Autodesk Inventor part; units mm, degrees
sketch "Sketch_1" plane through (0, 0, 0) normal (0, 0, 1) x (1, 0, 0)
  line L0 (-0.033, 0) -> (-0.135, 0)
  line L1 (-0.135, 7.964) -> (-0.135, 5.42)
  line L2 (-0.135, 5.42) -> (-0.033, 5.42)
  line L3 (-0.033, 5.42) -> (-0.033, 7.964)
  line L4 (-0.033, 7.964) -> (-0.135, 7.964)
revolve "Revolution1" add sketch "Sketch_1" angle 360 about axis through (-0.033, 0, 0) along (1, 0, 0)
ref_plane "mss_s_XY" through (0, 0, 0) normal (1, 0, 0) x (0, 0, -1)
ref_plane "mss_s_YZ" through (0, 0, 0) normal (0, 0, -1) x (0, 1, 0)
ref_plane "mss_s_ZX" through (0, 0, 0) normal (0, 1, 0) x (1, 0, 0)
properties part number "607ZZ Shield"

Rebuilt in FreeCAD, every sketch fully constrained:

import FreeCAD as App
import Part
import Sketcher
Q = App.Units.Quantity

doc = App.newDocument("Part")
body = doc.addObject("PartDesign::Body", "Body")

# Sketch on XY plane
sketch1 = body.newObject("Sketcher::SketchObject", "Sketch")
sketch1.AttachmentSupport = (doc.getObject("XY_Plane"), [""])
sketch1.MapMode = "FlatFace"
sketch1.addGeometry(Part.LineSegment(App.Vector(-0.03, 7.96, 0), App.Vector(-0.14, 7.96, 0)), False)
sketch1.addGeometry(Part.LineSegment(App.Vector(-0.14, 7.96, 0), App.Vector(-0.14, 5.42, 0)), False)
sketch1.addGeometry(Part.LineSegment(App.Vector(-0.14, 5.42, 0), App.Vector(-0.03, 5.42, 0)), False)
sketch1.addGeometry(Part.LineSegment(App.Vector(-0.03, 5.42, 0), App.Vector(-0.03, 7.96, 0)), False)
sketch1.addConstraint(Sketcher.Constraint("Coincident", 0, 2, 1, 1))
sketch1.addConstraint(Sketcher.Constraint("Coincident", 1, 2, 2, 1))
sketch1.addConstraint(Sketcher.Constraint("Coincident", 2, 2, 3, 1))
sketch1.addConstraint(Sketcher.Constraint("Coincident", 3, 2, 0, 1))
sketch1.addConstraint(Sketcher.Constraint("Horizontal", 0))
sketch1.addConstraint(Sketcher.Constraint("Vertical", 1))
sketch1.addConstraint(Sketcher.Constraint("Horizontal", 2))
sketch1.addConstraint(Sketcher.Constraint("Vertical", 3))
sketch1.addConstraint(Sketcher.Constraint("DistanceX", 0, 2, 0, 1, Q("0.102 mm")))
sketch1.addConstraint(Sketcher.Constraint("DistanceY", 1, 2, 1, 1, Q("2.544 mm")))
sketch1.addConstraint(Sketcher.Constraint("DistanceY", -1, 1, 1, 2, Q("5.42 mm")))
sketch1.addConstraint(Sketcher.Constraint("DistanceX", 0, 2, -1, 1, Q("0.135 mm")))
revolution = body.newObject("PartDesign::Revolution", "Revolution")
revolution.Profile = sketch1
revolution.ReferenceAxis = (sketch1, ["H_Axis"])
revolution.Angle = 360

doc.recompute()
